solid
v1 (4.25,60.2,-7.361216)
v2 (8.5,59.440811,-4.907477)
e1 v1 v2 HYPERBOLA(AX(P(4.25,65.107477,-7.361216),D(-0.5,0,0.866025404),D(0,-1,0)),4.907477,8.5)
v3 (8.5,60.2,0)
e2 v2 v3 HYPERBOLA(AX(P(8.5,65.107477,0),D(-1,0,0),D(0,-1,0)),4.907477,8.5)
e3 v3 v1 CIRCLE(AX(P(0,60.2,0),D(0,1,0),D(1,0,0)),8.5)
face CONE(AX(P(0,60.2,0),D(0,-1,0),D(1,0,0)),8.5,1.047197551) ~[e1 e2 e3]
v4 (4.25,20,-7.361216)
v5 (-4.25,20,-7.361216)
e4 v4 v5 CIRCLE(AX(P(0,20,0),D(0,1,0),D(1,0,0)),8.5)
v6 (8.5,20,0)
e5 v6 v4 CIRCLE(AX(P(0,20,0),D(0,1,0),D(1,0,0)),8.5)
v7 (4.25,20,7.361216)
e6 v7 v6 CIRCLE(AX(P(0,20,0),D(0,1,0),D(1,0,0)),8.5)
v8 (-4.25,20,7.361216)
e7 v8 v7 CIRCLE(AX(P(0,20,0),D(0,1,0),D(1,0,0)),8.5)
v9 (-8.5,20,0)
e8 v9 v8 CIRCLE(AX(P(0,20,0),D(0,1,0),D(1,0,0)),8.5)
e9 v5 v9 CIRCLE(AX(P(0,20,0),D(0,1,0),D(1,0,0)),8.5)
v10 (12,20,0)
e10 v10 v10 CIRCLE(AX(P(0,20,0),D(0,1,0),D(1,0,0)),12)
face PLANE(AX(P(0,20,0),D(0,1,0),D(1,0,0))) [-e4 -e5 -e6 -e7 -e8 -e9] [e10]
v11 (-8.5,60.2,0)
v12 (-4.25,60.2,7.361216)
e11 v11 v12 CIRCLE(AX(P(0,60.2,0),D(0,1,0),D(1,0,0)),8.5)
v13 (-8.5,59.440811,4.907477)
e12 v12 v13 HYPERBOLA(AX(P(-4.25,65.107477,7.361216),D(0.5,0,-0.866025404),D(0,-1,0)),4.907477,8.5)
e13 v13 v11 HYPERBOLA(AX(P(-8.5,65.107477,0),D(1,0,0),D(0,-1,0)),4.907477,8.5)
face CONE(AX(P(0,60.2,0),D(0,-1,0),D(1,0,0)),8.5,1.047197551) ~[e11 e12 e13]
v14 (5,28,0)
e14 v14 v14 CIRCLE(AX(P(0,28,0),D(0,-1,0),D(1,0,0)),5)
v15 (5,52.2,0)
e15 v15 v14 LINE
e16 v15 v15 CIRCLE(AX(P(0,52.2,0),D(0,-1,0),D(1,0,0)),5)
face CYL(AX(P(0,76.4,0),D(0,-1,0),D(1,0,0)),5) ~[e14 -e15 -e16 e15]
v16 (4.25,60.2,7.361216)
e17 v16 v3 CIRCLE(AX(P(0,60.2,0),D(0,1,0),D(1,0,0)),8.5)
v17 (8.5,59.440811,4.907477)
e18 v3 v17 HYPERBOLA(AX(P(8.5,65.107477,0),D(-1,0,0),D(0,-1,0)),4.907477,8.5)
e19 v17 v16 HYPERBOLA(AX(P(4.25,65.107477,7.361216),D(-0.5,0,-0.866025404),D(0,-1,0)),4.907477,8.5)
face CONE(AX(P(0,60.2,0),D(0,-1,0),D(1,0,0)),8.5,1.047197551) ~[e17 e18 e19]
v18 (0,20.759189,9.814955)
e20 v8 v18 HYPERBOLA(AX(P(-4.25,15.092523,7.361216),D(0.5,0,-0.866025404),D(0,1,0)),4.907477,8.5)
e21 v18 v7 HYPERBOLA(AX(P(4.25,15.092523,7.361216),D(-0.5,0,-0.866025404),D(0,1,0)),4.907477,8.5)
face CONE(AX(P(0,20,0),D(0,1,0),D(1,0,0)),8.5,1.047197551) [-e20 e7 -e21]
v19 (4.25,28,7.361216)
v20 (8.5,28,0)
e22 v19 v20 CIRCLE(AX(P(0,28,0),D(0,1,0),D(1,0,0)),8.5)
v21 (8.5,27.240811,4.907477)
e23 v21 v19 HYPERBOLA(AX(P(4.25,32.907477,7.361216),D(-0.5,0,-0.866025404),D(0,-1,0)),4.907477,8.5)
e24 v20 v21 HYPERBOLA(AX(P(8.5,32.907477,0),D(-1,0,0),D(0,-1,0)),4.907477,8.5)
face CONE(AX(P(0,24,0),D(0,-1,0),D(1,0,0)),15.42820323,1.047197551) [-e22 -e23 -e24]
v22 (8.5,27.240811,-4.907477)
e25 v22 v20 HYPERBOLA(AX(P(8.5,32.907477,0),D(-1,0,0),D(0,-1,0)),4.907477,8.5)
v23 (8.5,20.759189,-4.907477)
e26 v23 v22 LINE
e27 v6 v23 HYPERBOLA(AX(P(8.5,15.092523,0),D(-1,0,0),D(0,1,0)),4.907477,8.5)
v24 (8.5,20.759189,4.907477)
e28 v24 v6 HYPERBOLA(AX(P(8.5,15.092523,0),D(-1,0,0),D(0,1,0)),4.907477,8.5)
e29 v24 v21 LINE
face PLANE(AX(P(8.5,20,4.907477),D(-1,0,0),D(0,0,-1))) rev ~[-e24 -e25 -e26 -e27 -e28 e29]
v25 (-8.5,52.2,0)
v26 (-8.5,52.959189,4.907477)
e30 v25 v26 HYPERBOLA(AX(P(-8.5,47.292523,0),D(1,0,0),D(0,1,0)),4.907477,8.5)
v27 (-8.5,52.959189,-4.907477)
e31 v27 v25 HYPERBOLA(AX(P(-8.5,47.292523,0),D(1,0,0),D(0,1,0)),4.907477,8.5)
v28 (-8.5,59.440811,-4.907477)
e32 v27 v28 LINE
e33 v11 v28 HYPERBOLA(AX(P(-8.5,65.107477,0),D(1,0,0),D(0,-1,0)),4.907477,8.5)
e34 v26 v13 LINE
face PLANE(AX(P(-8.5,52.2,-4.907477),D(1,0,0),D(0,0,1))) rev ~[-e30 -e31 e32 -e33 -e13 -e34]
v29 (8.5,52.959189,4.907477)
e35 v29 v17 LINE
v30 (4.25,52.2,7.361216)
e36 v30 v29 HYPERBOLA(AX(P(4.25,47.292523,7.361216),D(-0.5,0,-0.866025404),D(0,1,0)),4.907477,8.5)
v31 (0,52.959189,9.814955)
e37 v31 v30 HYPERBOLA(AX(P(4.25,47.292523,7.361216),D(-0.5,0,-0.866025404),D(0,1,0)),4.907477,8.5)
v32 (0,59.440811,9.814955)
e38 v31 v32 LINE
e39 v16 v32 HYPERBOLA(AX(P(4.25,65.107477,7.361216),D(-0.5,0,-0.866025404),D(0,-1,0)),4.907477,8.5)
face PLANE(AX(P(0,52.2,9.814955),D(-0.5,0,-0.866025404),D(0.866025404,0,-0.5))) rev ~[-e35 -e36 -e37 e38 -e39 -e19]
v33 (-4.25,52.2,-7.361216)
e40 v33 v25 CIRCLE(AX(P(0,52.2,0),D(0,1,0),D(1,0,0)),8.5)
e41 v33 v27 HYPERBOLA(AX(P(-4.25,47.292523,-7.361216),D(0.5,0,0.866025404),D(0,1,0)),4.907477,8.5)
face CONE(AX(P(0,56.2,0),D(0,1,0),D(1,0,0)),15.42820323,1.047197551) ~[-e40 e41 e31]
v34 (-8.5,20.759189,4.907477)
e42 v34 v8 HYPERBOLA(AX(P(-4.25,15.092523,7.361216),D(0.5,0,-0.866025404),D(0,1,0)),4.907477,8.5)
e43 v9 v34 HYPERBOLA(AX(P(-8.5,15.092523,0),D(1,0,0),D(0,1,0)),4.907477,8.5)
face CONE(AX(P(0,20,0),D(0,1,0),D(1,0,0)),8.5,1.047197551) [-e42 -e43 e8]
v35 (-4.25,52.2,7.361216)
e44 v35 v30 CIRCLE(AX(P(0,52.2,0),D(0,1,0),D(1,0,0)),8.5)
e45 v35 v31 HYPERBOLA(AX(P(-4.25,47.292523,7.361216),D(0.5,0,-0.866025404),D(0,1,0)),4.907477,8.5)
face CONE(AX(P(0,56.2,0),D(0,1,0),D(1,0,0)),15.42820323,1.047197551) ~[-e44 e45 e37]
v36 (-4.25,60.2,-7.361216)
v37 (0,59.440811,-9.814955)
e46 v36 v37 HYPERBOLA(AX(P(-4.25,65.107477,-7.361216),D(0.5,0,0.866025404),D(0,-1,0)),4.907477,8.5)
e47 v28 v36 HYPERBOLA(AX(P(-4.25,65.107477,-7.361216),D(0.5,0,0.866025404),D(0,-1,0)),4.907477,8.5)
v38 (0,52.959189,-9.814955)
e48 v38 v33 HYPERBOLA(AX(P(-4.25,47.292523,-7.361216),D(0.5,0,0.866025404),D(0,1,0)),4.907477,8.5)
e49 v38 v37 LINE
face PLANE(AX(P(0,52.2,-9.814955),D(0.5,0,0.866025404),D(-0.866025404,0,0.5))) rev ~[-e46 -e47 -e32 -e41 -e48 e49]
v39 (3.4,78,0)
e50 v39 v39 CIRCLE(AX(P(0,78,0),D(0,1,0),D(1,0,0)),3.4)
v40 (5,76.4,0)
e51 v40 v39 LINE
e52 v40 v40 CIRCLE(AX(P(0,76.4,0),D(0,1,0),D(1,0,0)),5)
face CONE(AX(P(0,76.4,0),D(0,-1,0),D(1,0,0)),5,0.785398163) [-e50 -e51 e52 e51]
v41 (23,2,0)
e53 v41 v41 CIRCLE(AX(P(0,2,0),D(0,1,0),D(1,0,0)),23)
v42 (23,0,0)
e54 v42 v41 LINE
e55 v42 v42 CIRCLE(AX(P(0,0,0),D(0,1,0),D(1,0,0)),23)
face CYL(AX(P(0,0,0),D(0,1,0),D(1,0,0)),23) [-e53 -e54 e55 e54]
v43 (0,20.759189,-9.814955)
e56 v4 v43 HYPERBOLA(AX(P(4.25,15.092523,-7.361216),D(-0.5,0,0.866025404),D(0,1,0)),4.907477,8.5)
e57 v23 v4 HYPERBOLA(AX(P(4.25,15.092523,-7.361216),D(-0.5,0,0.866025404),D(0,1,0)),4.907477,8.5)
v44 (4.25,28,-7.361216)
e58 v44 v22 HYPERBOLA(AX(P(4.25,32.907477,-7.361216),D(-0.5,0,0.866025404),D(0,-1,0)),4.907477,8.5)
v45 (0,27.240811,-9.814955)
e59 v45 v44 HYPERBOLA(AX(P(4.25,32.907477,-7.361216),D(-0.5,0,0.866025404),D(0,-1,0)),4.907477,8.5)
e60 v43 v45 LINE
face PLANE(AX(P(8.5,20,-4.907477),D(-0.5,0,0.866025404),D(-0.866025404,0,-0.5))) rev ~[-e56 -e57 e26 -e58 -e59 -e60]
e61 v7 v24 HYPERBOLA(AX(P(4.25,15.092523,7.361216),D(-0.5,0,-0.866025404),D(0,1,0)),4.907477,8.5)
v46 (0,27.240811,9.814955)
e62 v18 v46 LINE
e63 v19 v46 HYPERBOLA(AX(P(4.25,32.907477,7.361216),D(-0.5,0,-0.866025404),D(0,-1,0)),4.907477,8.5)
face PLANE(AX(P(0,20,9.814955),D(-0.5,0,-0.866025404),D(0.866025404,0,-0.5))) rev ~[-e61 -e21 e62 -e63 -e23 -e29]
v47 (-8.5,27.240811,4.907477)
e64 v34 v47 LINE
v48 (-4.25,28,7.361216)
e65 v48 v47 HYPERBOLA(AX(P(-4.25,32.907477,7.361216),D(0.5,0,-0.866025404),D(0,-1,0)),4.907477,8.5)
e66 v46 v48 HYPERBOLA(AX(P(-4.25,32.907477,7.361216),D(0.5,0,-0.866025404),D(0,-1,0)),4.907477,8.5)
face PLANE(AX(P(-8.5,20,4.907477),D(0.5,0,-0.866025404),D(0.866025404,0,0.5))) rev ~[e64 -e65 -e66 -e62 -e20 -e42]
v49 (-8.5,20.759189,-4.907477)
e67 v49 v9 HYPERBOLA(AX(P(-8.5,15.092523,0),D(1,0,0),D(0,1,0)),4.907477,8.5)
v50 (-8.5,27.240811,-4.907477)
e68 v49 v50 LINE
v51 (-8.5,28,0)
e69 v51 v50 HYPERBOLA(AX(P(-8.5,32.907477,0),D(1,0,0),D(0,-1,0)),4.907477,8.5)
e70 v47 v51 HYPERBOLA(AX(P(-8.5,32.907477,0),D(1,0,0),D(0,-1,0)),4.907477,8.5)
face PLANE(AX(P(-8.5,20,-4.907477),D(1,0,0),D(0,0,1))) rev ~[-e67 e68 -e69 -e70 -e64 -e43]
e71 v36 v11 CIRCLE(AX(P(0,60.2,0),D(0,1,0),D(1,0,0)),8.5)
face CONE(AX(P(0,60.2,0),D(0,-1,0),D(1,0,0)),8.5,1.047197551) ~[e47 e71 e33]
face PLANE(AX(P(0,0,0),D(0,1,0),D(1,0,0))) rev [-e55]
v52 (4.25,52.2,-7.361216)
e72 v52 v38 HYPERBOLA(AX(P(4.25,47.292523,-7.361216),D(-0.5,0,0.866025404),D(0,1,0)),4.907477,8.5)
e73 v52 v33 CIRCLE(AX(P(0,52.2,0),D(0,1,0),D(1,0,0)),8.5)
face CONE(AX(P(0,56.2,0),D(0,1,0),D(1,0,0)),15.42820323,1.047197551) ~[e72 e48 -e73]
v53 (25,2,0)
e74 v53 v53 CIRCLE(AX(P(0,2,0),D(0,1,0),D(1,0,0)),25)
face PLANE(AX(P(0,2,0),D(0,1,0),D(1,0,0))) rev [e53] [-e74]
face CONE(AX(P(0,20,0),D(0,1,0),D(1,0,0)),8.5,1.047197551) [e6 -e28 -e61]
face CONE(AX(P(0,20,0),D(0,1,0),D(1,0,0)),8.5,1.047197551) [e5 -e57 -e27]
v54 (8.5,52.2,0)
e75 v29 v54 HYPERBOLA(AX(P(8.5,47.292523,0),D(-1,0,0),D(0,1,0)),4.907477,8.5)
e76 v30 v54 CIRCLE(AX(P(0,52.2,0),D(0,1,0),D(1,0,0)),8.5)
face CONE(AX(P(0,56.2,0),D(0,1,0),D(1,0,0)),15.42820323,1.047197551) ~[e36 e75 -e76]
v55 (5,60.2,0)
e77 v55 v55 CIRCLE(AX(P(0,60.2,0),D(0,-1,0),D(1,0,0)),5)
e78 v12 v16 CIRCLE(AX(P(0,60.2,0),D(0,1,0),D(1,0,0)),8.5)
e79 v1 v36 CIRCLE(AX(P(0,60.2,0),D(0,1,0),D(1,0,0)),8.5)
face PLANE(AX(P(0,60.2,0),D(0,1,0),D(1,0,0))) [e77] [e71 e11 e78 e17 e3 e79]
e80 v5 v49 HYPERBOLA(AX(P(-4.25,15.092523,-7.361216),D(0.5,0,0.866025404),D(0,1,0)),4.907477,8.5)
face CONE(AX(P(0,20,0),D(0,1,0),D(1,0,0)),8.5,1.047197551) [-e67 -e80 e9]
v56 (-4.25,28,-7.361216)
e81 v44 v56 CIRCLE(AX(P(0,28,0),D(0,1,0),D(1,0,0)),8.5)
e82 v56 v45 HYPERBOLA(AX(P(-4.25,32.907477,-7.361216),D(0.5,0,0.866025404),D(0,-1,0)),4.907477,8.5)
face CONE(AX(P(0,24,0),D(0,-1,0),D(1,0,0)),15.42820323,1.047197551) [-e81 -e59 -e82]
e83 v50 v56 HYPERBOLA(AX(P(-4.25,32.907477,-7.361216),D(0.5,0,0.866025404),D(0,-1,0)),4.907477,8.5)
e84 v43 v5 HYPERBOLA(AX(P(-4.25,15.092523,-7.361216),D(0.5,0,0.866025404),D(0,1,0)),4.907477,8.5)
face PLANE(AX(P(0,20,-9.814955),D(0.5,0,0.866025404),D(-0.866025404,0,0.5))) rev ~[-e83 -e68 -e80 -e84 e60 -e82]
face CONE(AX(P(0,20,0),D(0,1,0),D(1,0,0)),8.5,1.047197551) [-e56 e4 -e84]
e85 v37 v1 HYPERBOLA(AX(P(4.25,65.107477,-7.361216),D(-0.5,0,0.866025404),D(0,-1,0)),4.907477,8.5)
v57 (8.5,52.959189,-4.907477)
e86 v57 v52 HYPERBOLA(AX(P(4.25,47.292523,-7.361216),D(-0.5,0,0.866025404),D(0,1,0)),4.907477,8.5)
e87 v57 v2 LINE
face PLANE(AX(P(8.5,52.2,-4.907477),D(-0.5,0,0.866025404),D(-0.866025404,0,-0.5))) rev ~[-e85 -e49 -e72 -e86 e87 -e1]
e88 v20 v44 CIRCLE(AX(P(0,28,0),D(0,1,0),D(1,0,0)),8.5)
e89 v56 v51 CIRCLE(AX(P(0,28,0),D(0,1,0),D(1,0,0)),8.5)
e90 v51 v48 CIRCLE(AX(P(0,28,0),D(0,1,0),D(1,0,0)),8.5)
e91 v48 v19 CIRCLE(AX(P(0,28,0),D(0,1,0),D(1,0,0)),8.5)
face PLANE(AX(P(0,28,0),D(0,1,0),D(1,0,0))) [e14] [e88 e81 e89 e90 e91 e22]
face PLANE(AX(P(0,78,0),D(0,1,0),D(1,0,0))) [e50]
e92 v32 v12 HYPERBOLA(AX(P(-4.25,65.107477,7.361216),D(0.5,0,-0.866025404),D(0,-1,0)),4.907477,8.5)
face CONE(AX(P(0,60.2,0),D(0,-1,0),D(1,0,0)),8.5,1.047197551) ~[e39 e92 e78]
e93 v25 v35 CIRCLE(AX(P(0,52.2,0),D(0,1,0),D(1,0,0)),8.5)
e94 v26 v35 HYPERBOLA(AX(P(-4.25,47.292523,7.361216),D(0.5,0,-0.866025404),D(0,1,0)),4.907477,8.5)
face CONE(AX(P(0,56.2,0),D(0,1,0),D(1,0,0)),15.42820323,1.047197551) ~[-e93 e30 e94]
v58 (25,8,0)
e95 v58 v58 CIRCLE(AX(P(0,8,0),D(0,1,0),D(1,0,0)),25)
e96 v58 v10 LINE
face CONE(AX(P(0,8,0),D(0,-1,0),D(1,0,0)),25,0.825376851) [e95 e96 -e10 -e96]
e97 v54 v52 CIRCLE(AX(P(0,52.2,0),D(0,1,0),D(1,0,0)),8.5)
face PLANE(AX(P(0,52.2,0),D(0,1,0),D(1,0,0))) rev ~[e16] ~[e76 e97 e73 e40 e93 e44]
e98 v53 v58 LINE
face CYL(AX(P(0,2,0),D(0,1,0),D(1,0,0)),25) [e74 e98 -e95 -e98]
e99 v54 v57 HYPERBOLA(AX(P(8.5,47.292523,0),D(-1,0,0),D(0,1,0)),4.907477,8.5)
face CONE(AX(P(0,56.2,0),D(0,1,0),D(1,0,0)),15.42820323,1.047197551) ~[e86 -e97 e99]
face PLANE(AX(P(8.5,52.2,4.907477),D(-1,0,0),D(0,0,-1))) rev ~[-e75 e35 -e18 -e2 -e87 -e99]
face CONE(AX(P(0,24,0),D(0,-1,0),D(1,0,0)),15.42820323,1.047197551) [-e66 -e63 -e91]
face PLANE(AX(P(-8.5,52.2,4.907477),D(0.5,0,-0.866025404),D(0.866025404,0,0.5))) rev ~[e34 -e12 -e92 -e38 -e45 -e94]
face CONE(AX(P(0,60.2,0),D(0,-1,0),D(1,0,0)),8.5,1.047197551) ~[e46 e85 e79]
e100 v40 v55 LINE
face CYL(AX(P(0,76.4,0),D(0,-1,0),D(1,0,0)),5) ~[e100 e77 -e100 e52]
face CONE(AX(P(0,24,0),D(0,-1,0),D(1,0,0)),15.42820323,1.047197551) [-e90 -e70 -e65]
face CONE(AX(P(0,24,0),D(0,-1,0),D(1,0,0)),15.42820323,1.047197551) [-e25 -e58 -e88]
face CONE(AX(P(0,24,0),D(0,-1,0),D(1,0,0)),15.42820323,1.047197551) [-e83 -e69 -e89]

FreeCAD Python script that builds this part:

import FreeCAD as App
import Part
import Sketcher
Q = App.Units.Quantity

doc = App.newDocument("Part")
body = doc.addObject("PartDesign::Body", "Body")

sketch1 = body.newObject("Sketcher::SketchObject", "Sketch")
sketch1.AttachmentSupport = (doc.getObject("XY_Plane"), [""])
sketch1.MapMode = "FlatFace"
sketch1.addGeometry([
    Part.LineSegment(App.Vector(-23, 0, 0), App.Vector(0, 0, 0)),
    Part.LineSegment(App.Vector(0, 0, 0), App.Vector(0, 78, 0)),
    Part.LineSegment(App.Vector(0, 78, 0), App.Vector(-3.4, 78, 0)),
    Part.LineSegment(App.Vector(-3.4, 78, 0), App.Vector(-5, 76.4, 0)),
    Part.LineSegment(App.Vector(-5, 76.4, 0), App.Vector(-5, 20, 0)),
    Part.LineSegment(App.Vector(-5, 20, 0), App.Vector(-12, 20, 0)),
    Part.LineSegment(App.Vector(-12, 20, 0), App.Vector(-25, 8, 0)),
    Part.LineSegment(App.Vector(-25, 8, 0), App.Vector(-25, 2, 0)),
    Part.LineSegment(App.Vector(-25, 2, 0), App.Vector(-23, 2, 0)),
    Part.LineSegment(App.Vector(-23, 2, 0), App.Vector(-23, 0, 0)),
], False)
sketch1.addConstraint([
    Sketcher.Constraint("Coincident", 0, 2, 1, 1),
    Sketcher.Constraint("Coincident", 1, 2, 2, 1),
    Sketcher.Constraint("Coincident", 2, 2, 3, 1),
    Sketcher.Constraint("Coincident", 3, 2, 4, 1),
    Sketcher.Constraint("Coincident", 4, 2, 5, 1),
    Sketcher.Constraint("Coincident", 5, 2, 6, 1),
    Sketcher.Constraint("Coincident", 6, 2, 7, 1),
    Sketcher.Constraint("Coincident", 7, 2, 8, 1),
    Sketcher.Constraint("Coincident", 8, 2, 9, 1),
    Sketcher.Constraint("Coincident", 9, 2, 0, 1),
    Sketcher.Constraint("Horizontal", 0),
    Sketcher.Constraint("Vertical", 1),
    Sketcher.Constraint("Horizontal", 2),
    Sketcher.Constraint("Vertical", 4),
    Sketcher.Constraint("Horizontal", 5),
    Sketcher.Constraint("Vertical", 7),
    Sketcher.Constraint("Horizontal", 8),
    Sketcher.Constraint("Vertical", 9),
    Sketcher.Constraint("Coincident", 0, 2, -1, 1),
    Sketcher.Constraint("Equal", 8, 9),
    Sketcher.Constraint("DistanceX", 0, 1, 0, 2, Q("23 mm")),
    Sketcher.Constraint("DistanceX", 5, 2, 5, 1, Q("7 mm")),
    Sketcher.Constraint("DistanceX", 8, 1, 8, 2, Q("2 mm")),
    Sketcher.Constraint("DistanceY", 1, 1, 1, 2, Q("78 mm")),
    Sketcher.Constraint("DistanceY", 7, 2, 7, 1, Q("6 mm")),
    Sketcher.Constraint("Angle", 3, Q("-135 deg")),
    Sketcher.Constraint("DistanceX", 2, 2, 2, 1, Q("3.4 mm")),
    Sketcher.Constraint("DistanceY", 4, 2, 4, 1, Q("56.4 mm")),
    Sketcher.Constraint("DistanceX", 3, 2, -1, 1, Q("5 mm")),
])
revolution = body.newObject("PartDesign::Revolution", "Revolution")
revolution.Profile = sketch1
revolution.ReferenceAxis = (sketch1, ["V_Axis"])
revolution.Angle = 360

sketch2 = body.newObject("Sketcher::SketchObject", "Sketch001")
sketch2.AttachmentSupport = (doc.getObject("XZ_Plane"), [""])
sketch2.MapMode = "FlatFace"
sketch2.AttachmentOffset = App.Placement(App.Vector(0, 0, -20), App.Rotation())
sketch2.addGeometry([
    Part.LineSegment(App.Vector(0, -10, 0), App.Vector(-8, -5, 0)),
    Part.LineSegment(App.Vector(-8, -5, 0), App.Vector(-8, 5, 0)),
    Part.LineSegment(App.Vector(-8, 5, 0), App.Vector(0, 10, 0)),
    Part.LineSegment(App.Vector(0, 10, 0), App.Vector(8, 5, 0)),
    Part.LineSegment(App.Vector(8, 5, 0), App.Vector(8, -5, 0)),
    Part.LineSegment(App.Vector(8, -5, 0), App.Vector(0, -10, 0)),
], False)
sketch2.addConstraint([
    Sketcher.Constraint("Coincident", 0, 2, 1, 1),
    Sketcher.Constraint("Coincident", 1, 2, 2, 1),
    Sketcher.Constraint("Coincident", 2, 2, 3, 1),
    Sketcher.Constraint("Coincident", 3, 2, 4, 1),
    Sketcher.Constraint("Coincident", 4, 2, 5, 1),
    Sketcher.Constraint("Coincident", 5, 2, 0, 1),
    Sketcher.Constraint("Vertical", 1),
    Sketcher.Constraint("Vertical", 4),
    Sketcher.Constraint("Symmetric", 0, 2, 3, 2, -1, 1),
    Sketcher.Constraint("Symmetric", 2, 2, 5, 2, -1, 1),
    Sketcher.Constraint("PointOnObject", 2, 2, -2),
    Sketcher.Constraint("Parallel", 2, 5),
    Sketcher.Constraint("Horizontal", 1, 2, 3, 2),
    Sketcher.Constraint("Angle", 0, Q("150 deg")),
    Sketcher.Constraint("DistanceX", 1, 2, 3, 2, Q("17 mm")),
    Sketcher.Constraint("DistanceY", 1, 1, 1, 2, Q("9.814955 mm")),
])
pad1 = body.newObject("PartDesign::Pad", "Pad")
pad1.Profile = sketch2
pad1.Length = 8
pad1.Reversed = True

sketch3 = body.newObject("Sketcher::SketchObject", "Sketch002")
sketch3.AttachmentSupport = (doc.getObject("XZ_Plane"), [""])
sketch3.MapMode = "FlatFace"
sketch3.AttachmentOffset = App.Placement(App.Vector(0, 0, -52.2), App.Rotation())
sketch3.addGeometry([
    Part.LineSegment(App.Vector(8, -5, 0), App.Vector(0, -10, 0)),
    Part.LineSegment(App.Vector(0, -10, 0), App.Vector(-8, -5, 0)),
    Part.LineSegment(App.Vector(-8, -5, 0), App.Vector(-8, 5, 0)),
    Part.LineSegment(App.Vector(-8, 5, 0), App.Vector(0, 10, 0)),
    Part.LineSegment(App.Vector(0, 10, 0), App.Vector(8, 5, 0)),
    Part.LineSegment(App.Vector(8, 5, 0), App.Vector(8, -5, 0)),
], False)
sketch3.addConstraint([
    Sketcher.Constraint("Coincident", 0, 2, 1, 1),
    Sketcher.Constraint("Coincident", 1, 2, 2, 1),
    Sketcher.Constraint("Coincident", 2, 2, 3, 1),
    Sketcher.Constraint("Coincident", 3, 2, 4, 1),
    Sketcher.Constraint("Coincident", 4, 2, 5, 1),
    Sketcher.Constraint("Coincident", 5, 2, 0, 1),
    Sketcher.Constraint("Vertical", 2),
    Sketcher.Constraint("Vertical", 5),
    Sketcher.Constraint("Symmetric", 0, 2, 3, 2, -1, 1),
    Sketcher.Constraint("Symmetric", 1, 2, 4, 2, -1, 1),
    Sketcher.Constraint("PointOnObject", 0, 2, -2),
    Sketcher.Constraint("Parallel", 0, 3),
    Sketcher.Constraint("Horizontal", 2, 2, 4, 2),
    Sketcher.Constraint("Angle", 0, Q("-150 deg")),
    Sketcher.Constraint("DistanceX", 2, 2, 4, 2, Q("17 mm")),
    Sketcher.Constraint("DistanceY", 2, 1, 2, 2, Q("9.814955 mm")),
])
pad2 = body.newObject("PartDesign::Pad", "Pad001")
pad2.Profile = sketch3
pad2.Length = 8
pad2.Reversed = True

sketch4 = body.newObject("Sketcher::SketchObject", "Sketch003")
sketch4.AttachmentSupport = (doc.getObject("XY_Plane"), [""])
sketch4.MapMode = "FlatFace"
sketch4.addGeometry([
    Part.LineSegment(App.Vector(-8.5, 60.2, 0), App.Vector(-15.4, 60.2, 0)),
    Part.LineSegment(App.Vector(-15.4, 60.2, 0), App.Vector(-15.4, 56.2, 0)),
    Part.LineSegment(App.Vector(-15.4, 56.2, 0), App.Vector(-8.5, 60.2, 0)),
    Part.LineSegment(App.Vector(-15.4, 56.2, 0), App.Vector(-15.4, 52.2, 0)),
    Part.LineSegment(App.Vector(-15.4, 52.2, 0), App.Vector(-8.5, 52.2, 0)),
    Part.LineSegment(App.Vector(-8.5, 52.2, 0), App.Vector(-15.4, 56.2, 0)),
    Part.LineSegment(App.Vector(-15.4, 28, 0), App.Vector(-15.4, 24, 0)),
    Part.LineSegment(App.Vector(-15.4, 24, 0), App.Vector(-8.5, 28, 0)),
    Part.LineSegment(App.Vector(-8.5, 28, 0), App.Vector(-15.4, 28, 0)),
    Part.LineSegment(App.Vector(-15.4, 24, 0), App.Vector(-15.4, 20, 0)),
    Part.LineSegment(App.Vector(-15.4, 20, 0), App.Vector(-8.5, 20, 0)),
    Part.LineSegment(App.Vector(-8.5, 20, 0), App.Vector(-15.4, 24, 0)),
], False)
sketch4.addConstraint([
    Sketcher.Constraint("Coincident", 0, 2, 1, 1),
    Sketcher.Constraint("Coincident", 1, 2, 2, 1),
    Sketcher.Constraint("Coincident", 2, 2, 0, 1),
    Sketcher.Constraint("Coincident", 3, 2, 4, 1),
    Sketcher.Constraint("Coincident", 4, 2, 5, 1),
    Sketcher.Constraint("Coincident", 5, 2, 3, 1),
    Sketcher.Constraint("Coincident", 6, 2, 7, 1),
    Sketcher.Constraint("Coincident", 7, 2, 8, 1),
    Sketcher.Constraint("Coincident", 8, 2, 6, 1),
    Sketcher.Constraint("Coincident", 9, 2, 10, 1),
    Sketcher.Constraint("Coincident", 10, 2, 11, 1),
    Sketcher.Constraint("Coincident", 11, 2, 9, 1),
    Sketcher.Constraint("Horizontal", 0),
    Sketcher.Constraint("Vertical", 1),
    Sketcher.Constraint("Vertical", 3),
    Sketcher.Constraint("Horizontal", 4),
    Sketcher.Constraint("Vertical", 6),
    Sketcher.Constraint("Horizontal", 8),
    Sketcher.Constraint("Vertical", 9),
    Sketcher.Constraint("Horizontal", 10),
    Sketcher.Constraint("Coincident", 5, 2, 1, 2),
    Sketcher.Constraint("Coincident", 11, 2, 6, 2),
    Sketcher.Constraint("Parallel", 2, 7),
    Sketcher.Constraint("Parallel", 5, 11),
    Sketcher.Constraint("Vertical", 2, 2, 4, 2),
    Sketcher.Constraint("Vertical", 5, 2, 6, 2),
    Sketcher.Constraint("Vertical", 4, 2, 7, 2),
    Sketcher.Constraint("Vertical", 7, 2, 10, 2),
    Sketcher.Constraint("Equal", 1, 3),
    Sketcher.Constraint("DistanceY", 1, 2, 1, 1, Q("4 mm")),
    Sketcher.Constraint("Angle", 2, Q("30 deg")),
    Sketcher.Constraint("DistanceY", -1, 1, 6, 2, Q("24 mm")),
    Sketcher.Constraint("DistanceY", -1, 1, 0, 2, Q("60.2 mm")),
    Sketcher.Constraint("DistanceX", 2, 2, -1, 1, Q("8.5 mm")),
])
groove = body.newObject("PartDesign::Groove", "Groove")
groove.Profile = sketch4
groove.ReferenceAxis = (sketch4, ["V_Axis"])
groove.Angle = 360

doc.recompute()
